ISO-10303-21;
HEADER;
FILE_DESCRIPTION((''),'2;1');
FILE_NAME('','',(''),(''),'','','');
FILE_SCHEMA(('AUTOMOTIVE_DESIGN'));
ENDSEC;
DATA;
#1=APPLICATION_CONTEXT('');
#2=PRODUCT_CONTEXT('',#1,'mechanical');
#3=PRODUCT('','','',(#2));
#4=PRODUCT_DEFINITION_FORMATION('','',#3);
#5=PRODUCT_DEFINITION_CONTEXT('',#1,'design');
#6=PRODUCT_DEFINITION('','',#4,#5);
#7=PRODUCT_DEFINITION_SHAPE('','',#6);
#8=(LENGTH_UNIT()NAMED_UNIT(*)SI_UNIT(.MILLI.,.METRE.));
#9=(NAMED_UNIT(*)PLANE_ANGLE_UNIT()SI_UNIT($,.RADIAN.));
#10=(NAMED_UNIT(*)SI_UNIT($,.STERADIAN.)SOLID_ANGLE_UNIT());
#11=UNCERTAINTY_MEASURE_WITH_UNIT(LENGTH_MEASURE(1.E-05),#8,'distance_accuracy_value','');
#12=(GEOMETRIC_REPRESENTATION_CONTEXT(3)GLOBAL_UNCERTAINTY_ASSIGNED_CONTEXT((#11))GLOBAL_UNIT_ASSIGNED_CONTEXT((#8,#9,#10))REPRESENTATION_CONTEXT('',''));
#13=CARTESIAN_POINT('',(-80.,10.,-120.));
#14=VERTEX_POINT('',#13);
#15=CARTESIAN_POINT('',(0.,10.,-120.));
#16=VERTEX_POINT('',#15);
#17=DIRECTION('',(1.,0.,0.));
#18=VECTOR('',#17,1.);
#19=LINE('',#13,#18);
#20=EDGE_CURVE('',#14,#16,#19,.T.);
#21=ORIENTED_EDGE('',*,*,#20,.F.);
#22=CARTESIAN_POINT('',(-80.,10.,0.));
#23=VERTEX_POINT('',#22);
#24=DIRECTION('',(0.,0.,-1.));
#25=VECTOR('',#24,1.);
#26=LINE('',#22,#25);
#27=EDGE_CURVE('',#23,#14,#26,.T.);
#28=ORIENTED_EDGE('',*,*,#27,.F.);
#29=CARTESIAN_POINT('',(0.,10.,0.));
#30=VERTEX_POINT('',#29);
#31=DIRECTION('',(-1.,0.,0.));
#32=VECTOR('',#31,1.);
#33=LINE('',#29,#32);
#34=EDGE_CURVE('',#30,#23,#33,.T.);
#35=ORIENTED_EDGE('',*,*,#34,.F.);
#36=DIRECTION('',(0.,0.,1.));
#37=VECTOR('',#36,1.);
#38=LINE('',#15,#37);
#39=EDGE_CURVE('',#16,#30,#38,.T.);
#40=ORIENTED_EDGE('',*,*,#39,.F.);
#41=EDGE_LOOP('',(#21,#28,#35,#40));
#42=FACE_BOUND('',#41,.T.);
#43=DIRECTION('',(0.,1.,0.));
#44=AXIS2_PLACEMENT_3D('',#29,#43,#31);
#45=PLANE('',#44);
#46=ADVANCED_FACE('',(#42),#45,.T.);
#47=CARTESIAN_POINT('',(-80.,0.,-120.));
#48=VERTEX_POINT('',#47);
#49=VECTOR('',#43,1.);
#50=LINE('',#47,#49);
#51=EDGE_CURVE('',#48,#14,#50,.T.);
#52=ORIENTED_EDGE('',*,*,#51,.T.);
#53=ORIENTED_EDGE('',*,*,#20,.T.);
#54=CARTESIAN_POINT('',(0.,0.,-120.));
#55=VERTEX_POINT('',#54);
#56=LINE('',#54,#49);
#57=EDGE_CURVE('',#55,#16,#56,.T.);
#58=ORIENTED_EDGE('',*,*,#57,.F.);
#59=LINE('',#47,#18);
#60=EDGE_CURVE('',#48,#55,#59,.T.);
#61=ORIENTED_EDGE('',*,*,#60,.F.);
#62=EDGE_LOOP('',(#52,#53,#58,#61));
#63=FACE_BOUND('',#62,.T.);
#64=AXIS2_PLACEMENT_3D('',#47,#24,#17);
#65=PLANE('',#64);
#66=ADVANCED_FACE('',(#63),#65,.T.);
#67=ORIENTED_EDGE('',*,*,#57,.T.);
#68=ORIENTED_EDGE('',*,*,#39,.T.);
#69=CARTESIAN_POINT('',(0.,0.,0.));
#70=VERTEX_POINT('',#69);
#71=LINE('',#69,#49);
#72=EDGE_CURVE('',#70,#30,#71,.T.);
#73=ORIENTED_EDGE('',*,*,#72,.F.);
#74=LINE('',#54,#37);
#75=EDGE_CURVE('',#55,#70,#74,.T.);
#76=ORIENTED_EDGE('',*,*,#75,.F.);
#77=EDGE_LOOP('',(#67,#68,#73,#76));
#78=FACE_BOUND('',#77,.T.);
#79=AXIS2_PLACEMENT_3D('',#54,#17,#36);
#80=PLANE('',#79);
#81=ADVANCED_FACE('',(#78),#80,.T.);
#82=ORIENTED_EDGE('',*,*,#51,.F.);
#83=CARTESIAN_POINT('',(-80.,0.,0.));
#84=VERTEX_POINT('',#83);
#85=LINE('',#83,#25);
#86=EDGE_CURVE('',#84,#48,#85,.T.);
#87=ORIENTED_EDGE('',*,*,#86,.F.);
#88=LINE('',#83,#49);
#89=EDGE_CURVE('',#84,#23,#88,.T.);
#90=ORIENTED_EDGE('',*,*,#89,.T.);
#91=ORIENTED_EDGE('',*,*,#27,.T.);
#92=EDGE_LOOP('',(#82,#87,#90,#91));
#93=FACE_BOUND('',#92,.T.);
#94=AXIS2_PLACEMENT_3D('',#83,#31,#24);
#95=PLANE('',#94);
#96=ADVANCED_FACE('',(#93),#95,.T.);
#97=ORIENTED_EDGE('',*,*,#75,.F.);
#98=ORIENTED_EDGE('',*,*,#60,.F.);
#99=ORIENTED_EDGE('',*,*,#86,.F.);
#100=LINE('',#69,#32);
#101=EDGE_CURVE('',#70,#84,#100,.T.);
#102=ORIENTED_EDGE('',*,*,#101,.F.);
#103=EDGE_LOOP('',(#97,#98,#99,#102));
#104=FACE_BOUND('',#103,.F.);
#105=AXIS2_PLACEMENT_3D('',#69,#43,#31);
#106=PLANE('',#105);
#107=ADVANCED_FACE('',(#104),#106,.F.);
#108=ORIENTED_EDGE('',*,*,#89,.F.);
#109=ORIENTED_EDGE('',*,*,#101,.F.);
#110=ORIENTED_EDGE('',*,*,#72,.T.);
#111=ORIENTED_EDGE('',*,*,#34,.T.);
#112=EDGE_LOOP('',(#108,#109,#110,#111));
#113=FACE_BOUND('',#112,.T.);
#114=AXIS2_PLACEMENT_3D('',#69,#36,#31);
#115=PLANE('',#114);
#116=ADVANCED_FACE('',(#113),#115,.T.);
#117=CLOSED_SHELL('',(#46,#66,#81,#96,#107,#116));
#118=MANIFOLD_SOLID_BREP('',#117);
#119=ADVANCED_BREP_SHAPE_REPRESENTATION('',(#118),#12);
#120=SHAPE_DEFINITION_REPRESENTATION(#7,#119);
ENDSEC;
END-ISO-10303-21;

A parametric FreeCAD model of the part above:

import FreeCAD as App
import Part
import Sketcher

V = App.Vector


def add_polygon(sketch, points):
    """Adds a closed chain of lines whose ends are joined by coincident constraints."""
    first, n = sketch.GeometryCount, len(points)
    for a, b in zip(points, points[1:] + points[:1]):
        sketch.addGeometry(Part.LineSegment(App.Vector(*a, 0), App.Vector(*b, 0)), False)
    for i in range(n):
        sketch.addConstraint(Sketcher.Constraint("Coincident", first + i, 2, first + (i + 1) % n, 1))

doc = App.newDocument("Part")
body = doc.addObject("PartDesign::Body", "Body")

sketch1 = body.newObject("Sketcher::SketchObject", "Sketch")
sketch1.AttachmentSupport = (doc.getObject("XZ_Plane"), [""])
sketch1.MapMode = "FlatFace"
add_polygon(sketch1, [(-80, 0), (0, 0), (0, -120), (-80, -120)])
sketch1.addConstraint([
    Sketcher.Constraint("Horizontal", 0),
    Sketcher.Constraint("Vertical", 1),
    Sketcher.Constraint("Horizontal", 2),
    Sketcher.Constraint("Vertical", 3),
    Sketcher.Constraint("Coincident", 0, 2, -1, 1),
    Sketcher.Constraint("DistanceX", 0, 1, 0, 2, 80.0),
    Sketcher.Constraint("DistanceY", 1, 2, 1, 1, 120.0),
])
pad1 = body.newObject("PartDesign::Pad", "Pad")
pad1.Profile = sketch1
pad1.Length = 10
pad1.Reversed = True

doc.recompute()
